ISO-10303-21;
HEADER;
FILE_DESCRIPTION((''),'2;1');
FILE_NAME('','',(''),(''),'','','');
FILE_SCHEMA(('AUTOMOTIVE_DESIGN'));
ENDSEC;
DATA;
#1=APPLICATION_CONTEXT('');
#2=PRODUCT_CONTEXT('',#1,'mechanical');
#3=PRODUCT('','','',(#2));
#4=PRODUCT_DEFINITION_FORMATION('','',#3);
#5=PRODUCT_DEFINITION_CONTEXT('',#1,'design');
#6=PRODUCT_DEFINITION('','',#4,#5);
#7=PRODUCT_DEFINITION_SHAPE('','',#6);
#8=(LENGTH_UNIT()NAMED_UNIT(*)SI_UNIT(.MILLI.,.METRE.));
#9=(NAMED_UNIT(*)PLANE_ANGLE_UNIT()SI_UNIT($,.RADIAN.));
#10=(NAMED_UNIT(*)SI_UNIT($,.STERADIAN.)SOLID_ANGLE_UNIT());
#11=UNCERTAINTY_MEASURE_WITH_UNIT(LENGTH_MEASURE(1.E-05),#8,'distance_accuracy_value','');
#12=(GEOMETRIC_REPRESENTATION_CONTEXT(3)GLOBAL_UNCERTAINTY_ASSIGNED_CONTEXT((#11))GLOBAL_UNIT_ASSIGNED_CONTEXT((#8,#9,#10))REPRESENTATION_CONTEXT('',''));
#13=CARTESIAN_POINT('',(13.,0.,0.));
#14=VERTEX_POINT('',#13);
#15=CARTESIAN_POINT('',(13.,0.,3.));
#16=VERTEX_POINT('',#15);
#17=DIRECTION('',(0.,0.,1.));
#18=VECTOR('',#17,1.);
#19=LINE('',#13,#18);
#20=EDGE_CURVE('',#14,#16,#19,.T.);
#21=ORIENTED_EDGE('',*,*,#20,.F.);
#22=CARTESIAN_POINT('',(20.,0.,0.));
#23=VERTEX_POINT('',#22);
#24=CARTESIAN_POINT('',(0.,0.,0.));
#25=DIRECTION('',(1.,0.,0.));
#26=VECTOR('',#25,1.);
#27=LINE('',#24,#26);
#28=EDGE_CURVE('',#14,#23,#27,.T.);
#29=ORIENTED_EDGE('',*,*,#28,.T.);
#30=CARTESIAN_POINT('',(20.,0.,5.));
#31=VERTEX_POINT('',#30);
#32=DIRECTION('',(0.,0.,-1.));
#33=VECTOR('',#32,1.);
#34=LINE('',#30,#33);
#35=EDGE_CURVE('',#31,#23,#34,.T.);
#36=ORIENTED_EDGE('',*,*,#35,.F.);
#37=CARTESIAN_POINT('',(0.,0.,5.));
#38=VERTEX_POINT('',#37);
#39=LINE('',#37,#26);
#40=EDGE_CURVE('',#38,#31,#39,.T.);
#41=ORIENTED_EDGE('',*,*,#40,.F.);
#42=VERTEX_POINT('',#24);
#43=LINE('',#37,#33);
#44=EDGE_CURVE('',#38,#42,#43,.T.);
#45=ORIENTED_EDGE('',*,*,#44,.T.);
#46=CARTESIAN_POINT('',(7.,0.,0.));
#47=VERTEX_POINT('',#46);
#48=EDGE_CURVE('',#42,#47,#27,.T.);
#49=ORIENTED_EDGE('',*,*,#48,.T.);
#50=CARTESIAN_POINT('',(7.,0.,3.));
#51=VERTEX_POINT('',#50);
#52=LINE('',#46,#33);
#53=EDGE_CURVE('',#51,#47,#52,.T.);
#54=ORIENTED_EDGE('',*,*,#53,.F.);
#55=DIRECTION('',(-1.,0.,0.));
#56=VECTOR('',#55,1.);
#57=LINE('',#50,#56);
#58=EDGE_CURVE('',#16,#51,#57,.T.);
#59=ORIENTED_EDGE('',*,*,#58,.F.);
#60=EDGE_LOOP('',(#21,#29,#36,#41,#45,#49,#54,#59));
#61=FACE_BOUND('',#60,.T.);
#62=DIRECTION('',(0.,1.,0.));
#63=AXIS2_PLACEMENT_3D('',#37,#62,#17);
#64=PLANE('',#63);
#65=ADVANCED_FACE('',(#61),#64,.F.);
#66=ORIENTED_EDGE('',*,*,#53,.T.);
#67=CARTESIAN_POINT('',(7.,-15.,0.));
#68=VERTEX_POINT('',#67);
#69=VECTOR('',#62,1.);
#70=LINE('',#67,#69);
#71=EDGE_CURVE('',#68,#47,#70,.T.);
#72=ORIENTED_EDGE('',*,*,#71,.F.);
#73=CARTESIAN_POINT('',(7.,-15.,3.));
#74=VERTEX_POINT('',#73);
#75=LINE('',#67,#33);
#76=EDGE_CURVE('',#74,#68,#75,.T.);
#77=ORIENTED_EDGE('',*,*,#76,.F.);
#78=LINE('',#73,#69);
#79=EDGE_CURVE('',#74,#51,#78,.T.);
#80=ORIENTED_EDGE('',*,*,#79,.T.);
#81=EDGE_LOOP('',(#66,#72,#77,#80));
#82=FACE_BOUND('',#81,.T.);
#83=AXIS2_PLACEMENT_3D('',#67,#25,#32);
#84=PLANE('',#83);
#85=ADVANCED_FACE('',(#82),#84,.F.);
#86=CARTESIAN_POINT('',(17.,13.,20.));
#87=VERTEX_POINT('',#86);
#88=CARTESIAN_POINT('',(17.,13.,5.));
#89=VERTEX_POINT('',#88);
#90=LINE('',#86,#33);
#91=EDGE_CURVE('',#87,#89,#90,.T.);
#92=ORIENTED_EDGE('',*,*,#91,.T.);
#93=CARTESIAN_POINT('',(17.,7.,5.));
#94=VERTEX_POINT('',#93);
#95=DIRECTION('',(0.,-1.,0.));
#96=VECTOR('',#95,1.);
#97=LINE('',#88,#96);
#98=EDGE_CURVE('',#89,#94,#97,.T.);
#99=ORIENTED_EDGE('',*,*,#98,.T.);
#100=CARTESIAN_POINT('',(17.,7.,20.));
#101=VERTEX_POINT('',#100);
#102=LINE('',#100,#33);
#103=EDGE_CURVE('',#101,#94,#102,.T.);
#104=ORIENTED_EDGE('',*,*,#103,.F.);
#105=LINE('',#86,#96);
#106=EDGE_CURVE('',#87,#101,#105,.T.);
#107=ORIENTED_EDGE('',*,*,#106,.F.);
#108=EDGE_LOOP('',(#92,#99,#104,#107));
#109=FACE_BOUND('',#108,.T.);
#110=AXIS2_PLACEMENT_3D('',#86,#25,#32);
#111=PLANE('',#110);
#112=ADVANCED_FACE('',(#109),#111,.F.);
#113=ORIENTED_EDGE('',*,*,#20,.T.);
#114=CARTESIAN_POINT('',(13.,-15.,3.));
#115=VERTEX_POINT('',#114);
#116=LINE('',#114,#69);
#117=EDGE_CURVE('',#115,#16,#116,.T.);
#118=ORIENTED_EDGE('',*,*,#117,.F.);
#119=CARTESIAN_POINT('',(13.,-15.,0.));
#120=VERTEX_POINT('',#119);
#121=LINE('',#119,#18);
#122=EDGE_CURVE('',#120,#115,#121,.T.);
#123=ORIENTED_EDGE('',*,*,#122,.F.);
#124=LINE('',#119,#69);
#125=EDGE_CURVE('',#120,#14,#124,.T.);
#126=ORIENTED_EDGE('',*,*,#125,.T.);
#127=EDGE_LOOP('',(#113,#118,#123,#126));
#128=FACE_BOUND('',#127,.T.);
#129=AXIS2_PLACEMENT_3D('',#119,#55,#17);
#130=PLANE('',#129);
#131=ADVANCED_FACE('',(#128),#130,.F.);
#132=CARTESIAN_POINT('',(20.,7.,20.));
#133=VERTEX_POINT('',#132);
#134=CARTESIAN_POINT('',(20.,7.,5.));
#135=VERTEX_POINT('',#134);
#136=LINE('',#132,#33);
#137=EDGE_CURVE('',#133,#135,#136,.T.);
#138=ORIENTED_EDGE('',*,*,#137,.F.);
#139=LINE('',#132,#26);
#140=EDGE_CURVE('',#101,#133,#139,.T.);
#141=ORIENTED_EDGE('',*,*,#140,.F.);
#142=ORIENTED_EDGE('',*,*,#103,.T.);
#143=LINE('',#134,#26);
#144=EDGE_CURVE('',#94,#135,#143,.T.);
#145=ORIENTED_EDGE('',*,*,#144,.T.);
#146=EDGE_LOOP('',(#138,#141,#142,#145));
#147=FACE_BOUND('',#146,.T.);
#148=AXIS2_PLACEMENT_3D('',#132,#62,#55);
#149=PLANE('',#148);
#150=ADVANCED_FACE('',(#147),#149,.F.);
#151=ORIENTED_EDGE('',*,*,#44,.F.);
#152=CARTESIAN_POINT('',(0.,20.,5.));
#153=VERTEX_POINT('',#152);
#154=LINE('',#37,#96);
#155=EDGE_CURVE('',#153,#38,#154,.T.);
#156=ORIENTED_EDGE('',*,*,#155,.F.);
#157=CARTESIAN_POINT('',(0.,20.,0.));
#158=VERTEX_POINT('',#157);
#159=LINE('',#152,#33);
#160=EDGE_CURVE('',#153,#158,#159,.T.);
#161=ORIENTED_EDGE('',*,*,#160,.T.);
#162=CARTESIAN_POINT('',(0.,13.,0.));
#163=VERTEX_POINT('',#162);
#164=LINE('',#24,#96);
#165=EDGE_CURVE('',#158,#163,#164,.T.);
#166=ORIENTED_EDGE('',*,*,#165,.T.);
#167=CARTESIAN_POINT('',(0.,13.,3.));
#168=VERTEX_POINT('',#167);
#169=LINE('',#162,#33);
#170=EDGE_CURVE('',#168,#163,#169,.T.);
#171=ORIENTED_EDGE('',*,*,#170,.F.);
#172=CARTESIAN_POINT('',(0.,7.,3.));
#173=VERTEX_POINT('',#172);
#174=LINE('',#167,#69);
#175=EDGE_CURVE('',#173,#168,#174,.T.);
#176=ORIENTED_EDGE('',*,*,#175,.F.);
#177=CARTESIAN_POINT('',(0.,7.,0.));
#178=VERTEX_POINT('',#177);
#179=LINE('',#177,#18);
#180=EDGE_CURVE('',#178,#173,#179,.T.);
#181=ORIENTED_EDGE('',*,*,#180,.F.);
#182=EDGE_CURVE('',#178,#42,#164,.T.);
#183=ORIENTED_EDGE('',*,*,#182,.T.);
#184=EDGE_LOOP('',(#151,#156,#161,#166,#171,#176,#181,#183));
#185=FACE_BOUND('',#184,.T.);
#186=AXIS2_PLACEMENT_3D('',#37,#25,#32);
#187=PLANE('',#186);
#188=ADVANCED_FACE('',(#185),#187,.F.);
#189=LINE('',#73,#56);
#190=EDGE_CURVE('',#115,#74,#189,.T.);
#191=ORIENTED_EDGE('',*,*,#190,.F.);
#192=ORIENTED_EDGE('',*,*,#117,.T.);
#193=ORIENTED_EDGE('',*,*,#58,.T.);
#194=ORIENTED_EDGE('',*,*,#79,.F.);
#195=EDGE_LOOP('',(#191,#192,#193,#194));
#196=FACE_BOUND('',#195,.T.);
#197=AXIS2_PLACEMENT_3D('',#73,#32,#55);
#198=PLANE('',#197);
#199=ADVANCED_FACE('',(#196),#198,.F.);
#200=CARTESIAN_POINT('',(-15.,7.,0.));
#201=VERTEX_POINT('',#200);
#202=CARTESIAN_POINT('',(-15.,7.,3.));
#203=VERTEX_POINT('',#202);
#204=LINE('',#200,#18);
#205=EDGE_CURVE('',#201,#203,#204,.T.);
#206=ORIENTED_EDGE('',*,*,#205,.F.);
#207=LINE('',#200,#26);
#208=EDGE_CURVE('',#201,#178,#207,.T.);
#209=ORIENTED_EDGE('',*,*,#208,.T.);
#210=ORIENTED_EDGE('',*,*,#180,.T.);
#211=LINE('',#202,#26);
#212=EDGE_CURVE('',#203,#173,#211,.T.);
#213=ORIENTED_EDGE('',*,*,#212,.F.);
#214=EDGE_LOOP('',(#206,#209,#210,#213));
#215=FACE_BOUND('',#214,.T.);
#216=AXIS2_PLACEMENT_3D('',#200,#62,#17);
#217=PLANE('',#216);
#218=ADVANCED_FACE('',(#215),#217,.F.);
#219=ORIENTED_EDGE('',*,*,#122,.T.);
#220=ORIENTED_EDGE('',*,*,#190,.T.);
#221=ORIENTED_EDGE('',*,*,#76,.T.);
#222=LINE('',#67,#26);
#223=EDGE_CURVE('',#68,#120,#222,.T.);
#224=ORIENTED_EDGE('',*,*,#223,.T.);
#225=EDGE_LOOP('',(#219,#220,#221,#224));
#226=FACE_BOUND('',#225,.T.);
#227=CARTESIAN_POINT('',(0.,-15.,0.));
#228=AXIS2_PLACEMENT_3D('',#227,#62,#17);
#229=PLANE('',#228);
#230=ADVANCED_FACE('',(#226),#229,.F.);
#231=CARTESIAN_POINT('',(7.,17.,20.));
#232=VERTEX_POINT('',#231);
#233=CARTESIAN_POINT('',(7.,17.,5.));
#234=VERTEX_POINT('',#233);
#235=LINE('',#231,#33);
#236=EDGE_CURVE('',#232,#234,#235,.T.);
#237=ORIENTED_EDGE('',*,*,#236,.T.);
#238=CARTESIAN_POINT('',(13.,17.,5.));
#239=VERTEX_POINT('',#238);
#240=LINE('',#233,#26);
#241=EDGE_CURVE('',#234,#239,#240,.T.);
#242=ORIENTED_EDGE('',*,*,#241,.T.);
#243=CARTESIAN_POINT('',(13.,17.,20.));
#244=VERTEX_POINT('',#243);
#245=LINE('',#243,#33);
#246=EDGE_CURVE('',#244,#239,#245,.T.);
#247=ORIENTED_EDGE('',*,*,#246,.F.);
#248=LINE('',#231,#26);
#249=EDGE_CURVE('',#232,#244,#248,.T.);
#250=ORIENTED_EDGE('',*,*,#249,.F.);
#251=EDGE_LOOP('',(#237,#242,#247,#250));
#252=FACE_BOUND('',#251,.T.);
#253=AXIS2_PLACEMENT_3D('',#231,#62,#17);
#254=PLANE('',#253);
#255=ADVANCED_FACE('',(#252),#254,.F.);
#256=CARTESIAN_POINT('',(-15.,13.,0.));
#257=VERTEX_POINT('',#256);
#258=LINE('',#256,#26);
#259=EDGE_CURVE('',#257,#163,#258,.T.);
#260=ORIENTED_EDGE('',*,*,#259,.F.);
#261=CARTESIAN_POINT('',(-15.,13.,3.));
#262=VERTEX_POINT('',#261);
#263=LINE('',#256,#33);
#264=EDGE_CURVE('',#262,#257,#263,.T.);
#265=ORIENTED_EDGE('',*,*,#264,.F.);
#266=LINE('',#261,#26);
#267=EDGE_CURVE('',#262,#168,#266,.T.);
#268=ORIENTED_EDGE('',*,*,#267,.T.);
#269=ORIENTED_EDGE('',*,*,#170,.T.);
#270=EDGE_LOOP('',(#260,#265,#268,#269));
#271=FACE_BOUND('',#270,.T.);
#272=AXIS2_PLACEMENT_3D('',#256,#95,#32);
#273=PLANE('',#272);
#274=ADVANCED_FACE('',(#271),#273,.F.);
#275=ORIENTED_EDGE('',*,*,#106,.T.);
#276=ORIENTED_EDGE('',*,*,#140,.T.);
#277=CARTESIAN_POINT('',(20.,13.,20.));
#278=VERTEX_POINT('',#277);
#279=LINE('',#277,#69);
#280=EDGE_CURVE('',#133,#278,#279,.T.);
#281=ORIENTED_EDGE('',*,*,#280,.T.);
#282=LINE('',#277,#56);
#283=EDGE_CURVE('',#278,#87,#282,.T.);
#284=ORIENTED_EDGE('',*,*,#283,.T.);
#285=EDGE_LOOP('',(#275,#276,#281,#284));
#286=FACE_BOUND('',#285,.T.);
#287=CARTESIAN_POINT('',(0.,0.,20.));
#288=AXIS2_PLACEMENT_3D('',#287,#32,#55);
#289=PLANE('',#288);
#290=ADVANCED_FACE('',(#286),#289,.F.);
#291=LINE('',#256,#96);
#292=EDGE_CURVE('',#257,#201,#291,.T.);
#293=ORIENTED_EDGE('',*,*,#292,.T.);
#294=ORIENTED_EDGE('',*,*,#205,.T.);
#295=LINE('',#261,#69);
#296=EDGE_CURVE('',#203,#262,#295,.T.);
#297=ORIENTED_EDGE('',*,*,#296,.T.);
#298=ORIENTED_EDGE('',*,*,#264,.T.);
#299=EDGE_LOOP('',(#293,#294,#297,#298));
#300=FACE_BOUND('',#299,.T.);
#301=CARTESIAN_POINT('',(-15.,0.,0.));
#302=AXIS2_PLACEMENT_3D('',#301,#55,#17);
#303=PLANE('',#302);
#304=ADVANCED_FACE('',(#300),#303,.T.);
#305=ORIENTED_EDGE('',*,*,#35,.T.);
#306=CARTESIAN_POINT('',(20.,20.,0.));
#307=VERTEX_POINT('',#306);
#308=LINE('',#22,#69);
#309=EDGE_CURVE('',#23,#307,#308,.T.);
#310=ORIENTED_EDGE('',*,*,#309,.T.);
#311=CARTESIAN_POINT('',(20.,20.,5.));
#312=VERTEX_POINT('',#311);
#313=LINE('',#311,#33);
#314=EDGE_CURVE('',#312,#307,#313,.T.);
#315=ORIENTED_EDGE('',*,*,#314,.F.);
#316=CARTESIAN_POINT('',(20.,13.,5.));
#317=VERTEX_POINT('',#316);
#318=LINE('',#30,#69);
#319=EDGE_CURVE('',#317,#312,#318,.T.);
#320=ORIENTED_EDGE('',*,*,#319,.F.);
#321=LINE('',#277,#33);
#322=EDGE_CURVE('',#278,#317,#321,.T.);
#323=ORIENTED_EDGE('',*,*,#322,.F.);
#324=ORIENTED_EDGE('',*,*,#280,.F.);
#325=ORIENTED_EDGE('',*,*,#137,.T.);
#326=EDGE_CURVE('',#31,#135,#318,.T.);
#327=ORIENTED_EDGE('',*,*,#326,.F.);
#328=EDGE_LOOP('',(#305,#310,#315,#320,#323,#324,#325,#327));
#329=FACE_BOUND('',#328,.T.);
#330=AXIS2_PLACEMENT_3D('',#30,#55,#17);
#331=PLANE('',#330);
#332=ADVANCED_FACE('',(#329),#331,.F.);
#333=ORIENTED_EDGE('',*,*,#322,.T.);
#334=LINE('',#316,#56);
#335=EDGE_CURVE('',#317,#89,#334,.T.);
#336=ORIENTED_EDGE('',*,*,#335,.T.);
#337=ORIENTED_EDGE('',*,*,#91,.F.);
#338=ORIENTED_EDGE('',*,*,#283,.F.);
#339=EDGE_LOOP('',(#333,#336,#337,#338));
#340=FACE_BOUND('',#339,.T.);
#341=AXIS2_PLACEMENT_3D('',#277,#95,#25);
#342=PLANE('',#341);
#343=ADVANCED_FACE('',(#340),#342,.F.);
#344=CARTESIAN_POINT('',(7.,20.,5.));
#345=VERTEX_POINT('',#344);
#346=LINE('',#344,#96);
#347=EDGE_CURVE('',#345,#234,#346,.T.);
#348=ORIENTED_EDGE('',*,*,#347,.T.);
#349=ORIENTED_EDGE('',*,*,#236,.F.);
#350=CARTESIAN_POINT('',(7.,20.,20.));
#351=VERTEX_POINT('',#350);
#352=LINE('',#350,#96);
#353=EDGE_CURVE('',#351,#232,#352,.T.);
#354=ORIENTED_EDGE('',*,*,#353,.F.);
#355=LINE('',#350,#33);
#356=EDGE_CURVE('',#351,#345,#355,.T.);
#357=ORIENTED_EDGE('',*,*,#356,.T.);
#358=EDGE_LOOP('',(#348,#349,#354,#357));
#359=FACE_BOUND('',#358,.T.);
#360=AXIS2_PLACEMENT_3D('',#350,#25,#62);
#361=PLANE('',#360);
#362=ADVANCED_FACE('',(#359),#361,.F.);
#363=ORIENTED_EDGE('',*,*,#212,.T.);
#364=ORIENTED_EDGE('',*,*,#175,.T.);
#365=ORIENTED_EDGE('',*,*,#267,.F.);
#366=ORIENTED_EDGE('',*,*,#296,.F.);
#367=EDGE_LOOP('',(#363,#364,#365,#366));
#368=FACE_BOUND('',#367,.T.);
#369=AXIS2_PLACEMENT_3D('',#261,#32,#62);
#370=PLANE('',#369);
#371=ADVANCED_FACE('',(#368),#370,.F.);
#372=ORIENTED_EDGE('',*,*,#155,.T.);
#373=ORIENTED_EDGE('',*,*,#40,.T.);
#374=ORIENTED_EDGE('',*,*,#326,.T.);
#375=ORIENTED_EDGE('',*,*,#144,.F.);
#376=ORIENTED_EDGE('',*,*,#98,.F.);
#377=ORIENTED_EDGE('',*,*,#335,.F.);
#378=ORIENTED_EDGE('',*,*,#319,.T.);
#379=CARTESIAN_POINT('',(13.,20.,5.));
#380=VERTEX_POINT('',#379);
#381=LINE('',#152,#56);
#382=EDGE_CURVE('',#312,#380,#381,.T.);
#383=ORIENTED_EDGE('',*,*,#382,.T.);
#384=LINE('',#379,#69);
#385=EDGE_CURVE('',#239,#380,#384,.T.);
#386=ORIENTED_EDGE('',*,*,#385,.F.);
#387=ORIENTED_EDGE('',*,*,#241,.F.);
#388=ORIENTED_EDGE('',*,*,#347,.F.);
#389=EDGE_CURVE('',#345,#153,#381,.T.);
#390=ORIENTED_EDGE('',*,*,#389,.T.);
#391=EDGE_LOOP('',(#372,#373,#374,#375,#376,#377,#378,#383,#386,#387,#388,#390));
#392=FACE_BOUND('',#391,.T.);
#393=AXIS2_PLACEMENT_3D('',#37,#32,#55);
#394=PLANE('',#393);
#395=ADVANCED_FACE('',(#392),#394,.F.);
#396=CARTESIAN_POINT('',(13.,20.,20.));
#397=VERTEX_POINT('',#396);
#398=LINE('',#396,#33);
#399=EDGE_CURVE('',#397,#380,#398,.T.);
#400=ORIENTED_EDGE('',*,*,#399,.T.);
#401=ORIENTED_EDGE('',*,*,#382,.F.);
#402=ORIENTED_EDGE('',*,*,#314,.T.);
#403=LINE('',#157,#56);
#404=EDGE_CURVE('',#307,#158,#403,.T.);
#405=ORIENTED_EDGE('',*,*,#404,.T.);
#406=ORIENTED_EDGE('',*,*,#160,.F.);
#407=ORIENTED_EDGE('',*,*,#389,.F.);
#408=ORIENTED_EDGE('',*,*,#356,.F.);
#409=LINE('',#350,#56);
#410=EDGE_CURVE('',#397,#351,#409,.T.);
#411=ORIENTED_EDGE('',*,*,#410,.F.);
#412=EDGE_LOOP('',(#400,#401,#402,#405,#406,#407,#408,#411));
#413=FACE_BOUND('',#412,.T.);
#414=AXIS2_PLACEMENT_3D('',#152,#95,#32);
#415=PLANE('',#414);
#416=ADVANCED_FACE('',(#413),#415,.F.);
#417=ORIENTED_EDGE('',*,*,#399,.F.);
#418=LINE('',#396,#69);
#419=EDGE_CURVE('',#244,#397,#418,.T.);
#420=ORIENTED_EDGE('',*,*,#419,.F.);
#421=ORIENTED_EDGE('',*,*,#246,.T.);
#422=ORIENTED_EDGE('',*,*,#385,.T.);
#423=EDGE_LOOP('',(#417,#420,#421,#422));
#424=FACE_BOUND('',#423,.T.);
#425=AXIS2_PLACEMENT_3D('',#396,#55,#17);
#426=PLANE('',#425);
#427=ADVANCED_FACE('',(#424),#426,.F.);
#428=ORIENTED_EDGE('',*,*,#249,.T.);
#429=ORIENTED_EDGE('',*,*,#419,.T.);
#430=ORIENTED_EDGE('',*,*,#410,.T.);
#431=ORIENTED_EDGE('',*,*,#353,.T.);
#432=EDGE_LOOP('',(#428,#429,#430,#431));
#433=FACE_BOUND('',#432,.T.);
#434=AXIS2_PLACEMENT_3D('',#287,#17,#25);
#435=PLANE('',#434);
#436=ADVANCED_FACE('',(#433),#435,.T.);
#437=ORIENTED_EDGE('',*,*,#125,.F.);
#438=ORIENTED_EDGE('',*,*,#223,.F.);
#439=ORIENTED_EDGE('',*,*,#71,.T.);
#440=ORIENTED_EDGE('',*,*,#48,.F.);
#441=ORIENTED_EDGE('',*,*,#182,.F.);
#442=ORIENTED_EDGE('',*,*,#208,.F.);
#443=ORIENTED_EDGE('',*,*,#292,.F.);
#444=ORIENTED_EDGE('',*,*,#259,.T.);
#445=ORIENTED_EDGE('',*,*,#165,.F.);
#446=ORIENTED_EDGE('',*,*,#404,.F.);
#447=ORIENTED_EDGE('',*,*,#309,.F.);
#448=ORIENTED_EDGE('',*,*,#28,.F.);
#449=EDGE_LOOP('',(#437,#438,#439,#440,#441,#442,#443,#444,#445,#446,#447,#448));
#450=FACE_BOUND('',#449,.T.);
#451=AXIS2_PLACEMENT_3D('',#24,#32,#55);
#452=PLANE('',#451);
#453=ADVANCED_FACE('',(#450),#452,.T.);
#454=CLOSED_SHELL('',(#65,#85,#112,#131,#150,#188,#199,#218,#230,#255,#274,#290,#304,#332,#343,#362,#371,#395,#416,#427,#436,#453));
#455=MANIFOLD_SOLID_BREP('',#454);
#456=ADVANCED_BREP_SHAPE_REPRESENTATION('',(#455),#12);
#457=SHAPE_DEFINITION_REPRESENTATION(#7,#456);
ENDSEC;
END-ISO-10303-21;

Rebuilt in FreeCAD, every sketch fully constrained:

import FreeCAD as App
import Part
import Sketcher
from FreeCAD import Vector
Q = App.Units.Quantity


def add_polygon(sketch, points):
    """Adds a closed chain of lines whose ends are joined by coincident constraints."""
    first, n = sketch.GeometryCount, len(points)
    for a, b in zip(points, points[1:] + points[:1]):
        sketch.addGeometry(Part.LineSegment(App.Vector(*a, 0), App.Vector(*b, 0)), False)
    for i in range(n):
        sketch.addConstraint(Sketcher.Constraint("Coincident", first + i, 2, first + (i + 1) % n, 1))

doc = App.newDocument("Part")
body = doc.addObject("PartDesign::Body", "Body")

# Sketch on XY plane
sketch1 = body.newObject("Sketcher::SketchObject", "Sketch")
sketch1.AttachmentSupport = (doc.getObject("XY_Plane"), [""])
sketch1.MapMode = "FlatFace"
add_polygon(sketch1, [(0, 20), (0, 0), (20, 0), (20, 20)])  # lines 0-3
sketch1.addConstraint([
    Sketcher.Constraint("Vertical", 0),
    Sketcher.Constraint("Horizontal", 1),
    Sketcher.Constraint("Vertical", 2),
    Sketcher.Constraint("Horizontal", 3),
    Sketcher.Constraint("Coincident", 0, 2, -1, 1),
    Sketcher.Constraint("Equal", 3, 0),
    Sketcher.Constraint("DistanceX", 1, 1, 1, 2, Q("20 mm")),
])
pad1 = body.newObject("PartDesign::Pad", "Pad")
pad1.Profile = sketch1
pad1.Length = 5

# Sketch on XY plane
sketch2 = body.newObject("Sketcher::SketchObject", "Sketch001")
sketch2.AttachmentSupport = (doc.getObject("XY_Plane"), [""])
sketch2.MapMode = "FlatFace"
sketch2.AttachmentOffset = App.Placement(Vector(0, 0, 5), App.Rotation())
add_polygon(sketch2, [(7, 20), (7, 17), (13, 17), (13, 20)])  # lines 0-3
add_polygon(sketch2, [(17, 13), (17, 7), (20, 7), (20, 13)])  # lines 4-7
sketch2.addConstraint([
    Sketcher.Constraint("Vertical", 0),
    Sketcher.Constraint("Horizontal", 1),
    Sketcher.Constraint("Vertical", 2),
    Sketcher.Constraint("Horizontal", 3),
    Sketcher.Constraint("Vertical", 4),
    Sketcher.Constraint("Horizontal", 5),
    Sketcher.Constraint("Vertical", 6),
    Sketcher.Constraint("Horizontal", 7),
    Sketcher.Constraint("Equal", 7, 0),
    Sketcher.Constraint("Equal", 3, 4),
    Sketcher.Constraint("DistanceX", 1, 1, 1, 2, Q("6 mm")),
    Sketcher.Constraint("DistanceX", 5, 1, 5, 2, Q("3 mm")),
    Sketcher.Constraint("DistanceX", -1, 1, 0, 2, Q("7 mm")),
    Sketcher.Constraint("DistanceY", -1, 1, 0, 2, Q("17 mm")),
    Sketcher.Constraint("DistanceX", -1, 1, 4, 2, Q("17 mm")),
    Sketcher.Constraint("DistanceY", -1, 1, 4, 2, Q("7 mm")),
])
pad2 = body.newObject("PartDesign::Pad", "Pad001")
pad2.Profile = sketch2
pad2.Length = 15

# Sketch on XZ plane
sketch3 = body.newObject("Sketcher::SketchObject", "Sketch002")
sketch3.AttachmentSupport = (doc.getObject("XZ_Plane"), [""])
sketch3.MapMode = "FlatFace"
add_polygon(sketch3, [(7, 3), (7, 0), (13, 0), (13, 3)])  # lines 0-3
sketch3.addConstraint([
    Sketcher.Constraint("Vertical", 0),
    Sketcher.Constraint("Horizontal", 1),
    Sketcher.Constraint("Vertical", 2),
    Sketcher.Constraint("Horizontal", 3),
    Sketcher.Constraint("PointOnObject", 0, 2, -1),
    Sketcher.Constraint("DistanceX", 1, 1, 1, 2, Q("6 mm")),
    Sketcher.Constraint("DistanceY", 0, 2, 0, 1, Q("3 mm")),
    Sketcher.Constraint("DistanceX", -1, 1, 0, 2, Q("7 mm")),
])
pad3 = body.newObject("PartDesign::Pad", "Pad002")
pad3.Profile = sketch3
pad3.Length = 15

# Sketch on YZ plane
sketch4 = body.newObject("Sketcher::SketchObject", "Sketch003")
sketch4.AttachmentSupport = (doc.getObject("YZ_Plane"), [""])
sketch4.MapMode = "FlatFace"
add_polygon(sketch4, [(13, 0), (7, 0), (7, 3), (13, 3)])  # lines 0-3
sketch4.addConstraint([
    Sketcher.Constraint("Horizontal", 0),
    Sketcher.Constraint("Vertical", 1),
    Sketcher.Constraint("Horizontal", 2),
    Sketcher.Constraint("Vertical", 3),
    Sketcher.Constraint("PointOnObject", 0, 2, -1),
    Sketcher.Constraint("DistanceX", 0, 2, 0, 1, Q("6 mm")),
    Sketcher.Constraint("DistanceY", 1, 1, 1, 2, Q("3 mm")),
    Sketcher.Constraint("DistanceX", -1, 1, 0, 2, Q("7 mm")),
])
pad4 = body.newObject("PartDesign::Pad", "Pad003")
pad4.Profile = sketch4
pad4.Length = 15
pad4.Reversed = True

doc.recompute()
